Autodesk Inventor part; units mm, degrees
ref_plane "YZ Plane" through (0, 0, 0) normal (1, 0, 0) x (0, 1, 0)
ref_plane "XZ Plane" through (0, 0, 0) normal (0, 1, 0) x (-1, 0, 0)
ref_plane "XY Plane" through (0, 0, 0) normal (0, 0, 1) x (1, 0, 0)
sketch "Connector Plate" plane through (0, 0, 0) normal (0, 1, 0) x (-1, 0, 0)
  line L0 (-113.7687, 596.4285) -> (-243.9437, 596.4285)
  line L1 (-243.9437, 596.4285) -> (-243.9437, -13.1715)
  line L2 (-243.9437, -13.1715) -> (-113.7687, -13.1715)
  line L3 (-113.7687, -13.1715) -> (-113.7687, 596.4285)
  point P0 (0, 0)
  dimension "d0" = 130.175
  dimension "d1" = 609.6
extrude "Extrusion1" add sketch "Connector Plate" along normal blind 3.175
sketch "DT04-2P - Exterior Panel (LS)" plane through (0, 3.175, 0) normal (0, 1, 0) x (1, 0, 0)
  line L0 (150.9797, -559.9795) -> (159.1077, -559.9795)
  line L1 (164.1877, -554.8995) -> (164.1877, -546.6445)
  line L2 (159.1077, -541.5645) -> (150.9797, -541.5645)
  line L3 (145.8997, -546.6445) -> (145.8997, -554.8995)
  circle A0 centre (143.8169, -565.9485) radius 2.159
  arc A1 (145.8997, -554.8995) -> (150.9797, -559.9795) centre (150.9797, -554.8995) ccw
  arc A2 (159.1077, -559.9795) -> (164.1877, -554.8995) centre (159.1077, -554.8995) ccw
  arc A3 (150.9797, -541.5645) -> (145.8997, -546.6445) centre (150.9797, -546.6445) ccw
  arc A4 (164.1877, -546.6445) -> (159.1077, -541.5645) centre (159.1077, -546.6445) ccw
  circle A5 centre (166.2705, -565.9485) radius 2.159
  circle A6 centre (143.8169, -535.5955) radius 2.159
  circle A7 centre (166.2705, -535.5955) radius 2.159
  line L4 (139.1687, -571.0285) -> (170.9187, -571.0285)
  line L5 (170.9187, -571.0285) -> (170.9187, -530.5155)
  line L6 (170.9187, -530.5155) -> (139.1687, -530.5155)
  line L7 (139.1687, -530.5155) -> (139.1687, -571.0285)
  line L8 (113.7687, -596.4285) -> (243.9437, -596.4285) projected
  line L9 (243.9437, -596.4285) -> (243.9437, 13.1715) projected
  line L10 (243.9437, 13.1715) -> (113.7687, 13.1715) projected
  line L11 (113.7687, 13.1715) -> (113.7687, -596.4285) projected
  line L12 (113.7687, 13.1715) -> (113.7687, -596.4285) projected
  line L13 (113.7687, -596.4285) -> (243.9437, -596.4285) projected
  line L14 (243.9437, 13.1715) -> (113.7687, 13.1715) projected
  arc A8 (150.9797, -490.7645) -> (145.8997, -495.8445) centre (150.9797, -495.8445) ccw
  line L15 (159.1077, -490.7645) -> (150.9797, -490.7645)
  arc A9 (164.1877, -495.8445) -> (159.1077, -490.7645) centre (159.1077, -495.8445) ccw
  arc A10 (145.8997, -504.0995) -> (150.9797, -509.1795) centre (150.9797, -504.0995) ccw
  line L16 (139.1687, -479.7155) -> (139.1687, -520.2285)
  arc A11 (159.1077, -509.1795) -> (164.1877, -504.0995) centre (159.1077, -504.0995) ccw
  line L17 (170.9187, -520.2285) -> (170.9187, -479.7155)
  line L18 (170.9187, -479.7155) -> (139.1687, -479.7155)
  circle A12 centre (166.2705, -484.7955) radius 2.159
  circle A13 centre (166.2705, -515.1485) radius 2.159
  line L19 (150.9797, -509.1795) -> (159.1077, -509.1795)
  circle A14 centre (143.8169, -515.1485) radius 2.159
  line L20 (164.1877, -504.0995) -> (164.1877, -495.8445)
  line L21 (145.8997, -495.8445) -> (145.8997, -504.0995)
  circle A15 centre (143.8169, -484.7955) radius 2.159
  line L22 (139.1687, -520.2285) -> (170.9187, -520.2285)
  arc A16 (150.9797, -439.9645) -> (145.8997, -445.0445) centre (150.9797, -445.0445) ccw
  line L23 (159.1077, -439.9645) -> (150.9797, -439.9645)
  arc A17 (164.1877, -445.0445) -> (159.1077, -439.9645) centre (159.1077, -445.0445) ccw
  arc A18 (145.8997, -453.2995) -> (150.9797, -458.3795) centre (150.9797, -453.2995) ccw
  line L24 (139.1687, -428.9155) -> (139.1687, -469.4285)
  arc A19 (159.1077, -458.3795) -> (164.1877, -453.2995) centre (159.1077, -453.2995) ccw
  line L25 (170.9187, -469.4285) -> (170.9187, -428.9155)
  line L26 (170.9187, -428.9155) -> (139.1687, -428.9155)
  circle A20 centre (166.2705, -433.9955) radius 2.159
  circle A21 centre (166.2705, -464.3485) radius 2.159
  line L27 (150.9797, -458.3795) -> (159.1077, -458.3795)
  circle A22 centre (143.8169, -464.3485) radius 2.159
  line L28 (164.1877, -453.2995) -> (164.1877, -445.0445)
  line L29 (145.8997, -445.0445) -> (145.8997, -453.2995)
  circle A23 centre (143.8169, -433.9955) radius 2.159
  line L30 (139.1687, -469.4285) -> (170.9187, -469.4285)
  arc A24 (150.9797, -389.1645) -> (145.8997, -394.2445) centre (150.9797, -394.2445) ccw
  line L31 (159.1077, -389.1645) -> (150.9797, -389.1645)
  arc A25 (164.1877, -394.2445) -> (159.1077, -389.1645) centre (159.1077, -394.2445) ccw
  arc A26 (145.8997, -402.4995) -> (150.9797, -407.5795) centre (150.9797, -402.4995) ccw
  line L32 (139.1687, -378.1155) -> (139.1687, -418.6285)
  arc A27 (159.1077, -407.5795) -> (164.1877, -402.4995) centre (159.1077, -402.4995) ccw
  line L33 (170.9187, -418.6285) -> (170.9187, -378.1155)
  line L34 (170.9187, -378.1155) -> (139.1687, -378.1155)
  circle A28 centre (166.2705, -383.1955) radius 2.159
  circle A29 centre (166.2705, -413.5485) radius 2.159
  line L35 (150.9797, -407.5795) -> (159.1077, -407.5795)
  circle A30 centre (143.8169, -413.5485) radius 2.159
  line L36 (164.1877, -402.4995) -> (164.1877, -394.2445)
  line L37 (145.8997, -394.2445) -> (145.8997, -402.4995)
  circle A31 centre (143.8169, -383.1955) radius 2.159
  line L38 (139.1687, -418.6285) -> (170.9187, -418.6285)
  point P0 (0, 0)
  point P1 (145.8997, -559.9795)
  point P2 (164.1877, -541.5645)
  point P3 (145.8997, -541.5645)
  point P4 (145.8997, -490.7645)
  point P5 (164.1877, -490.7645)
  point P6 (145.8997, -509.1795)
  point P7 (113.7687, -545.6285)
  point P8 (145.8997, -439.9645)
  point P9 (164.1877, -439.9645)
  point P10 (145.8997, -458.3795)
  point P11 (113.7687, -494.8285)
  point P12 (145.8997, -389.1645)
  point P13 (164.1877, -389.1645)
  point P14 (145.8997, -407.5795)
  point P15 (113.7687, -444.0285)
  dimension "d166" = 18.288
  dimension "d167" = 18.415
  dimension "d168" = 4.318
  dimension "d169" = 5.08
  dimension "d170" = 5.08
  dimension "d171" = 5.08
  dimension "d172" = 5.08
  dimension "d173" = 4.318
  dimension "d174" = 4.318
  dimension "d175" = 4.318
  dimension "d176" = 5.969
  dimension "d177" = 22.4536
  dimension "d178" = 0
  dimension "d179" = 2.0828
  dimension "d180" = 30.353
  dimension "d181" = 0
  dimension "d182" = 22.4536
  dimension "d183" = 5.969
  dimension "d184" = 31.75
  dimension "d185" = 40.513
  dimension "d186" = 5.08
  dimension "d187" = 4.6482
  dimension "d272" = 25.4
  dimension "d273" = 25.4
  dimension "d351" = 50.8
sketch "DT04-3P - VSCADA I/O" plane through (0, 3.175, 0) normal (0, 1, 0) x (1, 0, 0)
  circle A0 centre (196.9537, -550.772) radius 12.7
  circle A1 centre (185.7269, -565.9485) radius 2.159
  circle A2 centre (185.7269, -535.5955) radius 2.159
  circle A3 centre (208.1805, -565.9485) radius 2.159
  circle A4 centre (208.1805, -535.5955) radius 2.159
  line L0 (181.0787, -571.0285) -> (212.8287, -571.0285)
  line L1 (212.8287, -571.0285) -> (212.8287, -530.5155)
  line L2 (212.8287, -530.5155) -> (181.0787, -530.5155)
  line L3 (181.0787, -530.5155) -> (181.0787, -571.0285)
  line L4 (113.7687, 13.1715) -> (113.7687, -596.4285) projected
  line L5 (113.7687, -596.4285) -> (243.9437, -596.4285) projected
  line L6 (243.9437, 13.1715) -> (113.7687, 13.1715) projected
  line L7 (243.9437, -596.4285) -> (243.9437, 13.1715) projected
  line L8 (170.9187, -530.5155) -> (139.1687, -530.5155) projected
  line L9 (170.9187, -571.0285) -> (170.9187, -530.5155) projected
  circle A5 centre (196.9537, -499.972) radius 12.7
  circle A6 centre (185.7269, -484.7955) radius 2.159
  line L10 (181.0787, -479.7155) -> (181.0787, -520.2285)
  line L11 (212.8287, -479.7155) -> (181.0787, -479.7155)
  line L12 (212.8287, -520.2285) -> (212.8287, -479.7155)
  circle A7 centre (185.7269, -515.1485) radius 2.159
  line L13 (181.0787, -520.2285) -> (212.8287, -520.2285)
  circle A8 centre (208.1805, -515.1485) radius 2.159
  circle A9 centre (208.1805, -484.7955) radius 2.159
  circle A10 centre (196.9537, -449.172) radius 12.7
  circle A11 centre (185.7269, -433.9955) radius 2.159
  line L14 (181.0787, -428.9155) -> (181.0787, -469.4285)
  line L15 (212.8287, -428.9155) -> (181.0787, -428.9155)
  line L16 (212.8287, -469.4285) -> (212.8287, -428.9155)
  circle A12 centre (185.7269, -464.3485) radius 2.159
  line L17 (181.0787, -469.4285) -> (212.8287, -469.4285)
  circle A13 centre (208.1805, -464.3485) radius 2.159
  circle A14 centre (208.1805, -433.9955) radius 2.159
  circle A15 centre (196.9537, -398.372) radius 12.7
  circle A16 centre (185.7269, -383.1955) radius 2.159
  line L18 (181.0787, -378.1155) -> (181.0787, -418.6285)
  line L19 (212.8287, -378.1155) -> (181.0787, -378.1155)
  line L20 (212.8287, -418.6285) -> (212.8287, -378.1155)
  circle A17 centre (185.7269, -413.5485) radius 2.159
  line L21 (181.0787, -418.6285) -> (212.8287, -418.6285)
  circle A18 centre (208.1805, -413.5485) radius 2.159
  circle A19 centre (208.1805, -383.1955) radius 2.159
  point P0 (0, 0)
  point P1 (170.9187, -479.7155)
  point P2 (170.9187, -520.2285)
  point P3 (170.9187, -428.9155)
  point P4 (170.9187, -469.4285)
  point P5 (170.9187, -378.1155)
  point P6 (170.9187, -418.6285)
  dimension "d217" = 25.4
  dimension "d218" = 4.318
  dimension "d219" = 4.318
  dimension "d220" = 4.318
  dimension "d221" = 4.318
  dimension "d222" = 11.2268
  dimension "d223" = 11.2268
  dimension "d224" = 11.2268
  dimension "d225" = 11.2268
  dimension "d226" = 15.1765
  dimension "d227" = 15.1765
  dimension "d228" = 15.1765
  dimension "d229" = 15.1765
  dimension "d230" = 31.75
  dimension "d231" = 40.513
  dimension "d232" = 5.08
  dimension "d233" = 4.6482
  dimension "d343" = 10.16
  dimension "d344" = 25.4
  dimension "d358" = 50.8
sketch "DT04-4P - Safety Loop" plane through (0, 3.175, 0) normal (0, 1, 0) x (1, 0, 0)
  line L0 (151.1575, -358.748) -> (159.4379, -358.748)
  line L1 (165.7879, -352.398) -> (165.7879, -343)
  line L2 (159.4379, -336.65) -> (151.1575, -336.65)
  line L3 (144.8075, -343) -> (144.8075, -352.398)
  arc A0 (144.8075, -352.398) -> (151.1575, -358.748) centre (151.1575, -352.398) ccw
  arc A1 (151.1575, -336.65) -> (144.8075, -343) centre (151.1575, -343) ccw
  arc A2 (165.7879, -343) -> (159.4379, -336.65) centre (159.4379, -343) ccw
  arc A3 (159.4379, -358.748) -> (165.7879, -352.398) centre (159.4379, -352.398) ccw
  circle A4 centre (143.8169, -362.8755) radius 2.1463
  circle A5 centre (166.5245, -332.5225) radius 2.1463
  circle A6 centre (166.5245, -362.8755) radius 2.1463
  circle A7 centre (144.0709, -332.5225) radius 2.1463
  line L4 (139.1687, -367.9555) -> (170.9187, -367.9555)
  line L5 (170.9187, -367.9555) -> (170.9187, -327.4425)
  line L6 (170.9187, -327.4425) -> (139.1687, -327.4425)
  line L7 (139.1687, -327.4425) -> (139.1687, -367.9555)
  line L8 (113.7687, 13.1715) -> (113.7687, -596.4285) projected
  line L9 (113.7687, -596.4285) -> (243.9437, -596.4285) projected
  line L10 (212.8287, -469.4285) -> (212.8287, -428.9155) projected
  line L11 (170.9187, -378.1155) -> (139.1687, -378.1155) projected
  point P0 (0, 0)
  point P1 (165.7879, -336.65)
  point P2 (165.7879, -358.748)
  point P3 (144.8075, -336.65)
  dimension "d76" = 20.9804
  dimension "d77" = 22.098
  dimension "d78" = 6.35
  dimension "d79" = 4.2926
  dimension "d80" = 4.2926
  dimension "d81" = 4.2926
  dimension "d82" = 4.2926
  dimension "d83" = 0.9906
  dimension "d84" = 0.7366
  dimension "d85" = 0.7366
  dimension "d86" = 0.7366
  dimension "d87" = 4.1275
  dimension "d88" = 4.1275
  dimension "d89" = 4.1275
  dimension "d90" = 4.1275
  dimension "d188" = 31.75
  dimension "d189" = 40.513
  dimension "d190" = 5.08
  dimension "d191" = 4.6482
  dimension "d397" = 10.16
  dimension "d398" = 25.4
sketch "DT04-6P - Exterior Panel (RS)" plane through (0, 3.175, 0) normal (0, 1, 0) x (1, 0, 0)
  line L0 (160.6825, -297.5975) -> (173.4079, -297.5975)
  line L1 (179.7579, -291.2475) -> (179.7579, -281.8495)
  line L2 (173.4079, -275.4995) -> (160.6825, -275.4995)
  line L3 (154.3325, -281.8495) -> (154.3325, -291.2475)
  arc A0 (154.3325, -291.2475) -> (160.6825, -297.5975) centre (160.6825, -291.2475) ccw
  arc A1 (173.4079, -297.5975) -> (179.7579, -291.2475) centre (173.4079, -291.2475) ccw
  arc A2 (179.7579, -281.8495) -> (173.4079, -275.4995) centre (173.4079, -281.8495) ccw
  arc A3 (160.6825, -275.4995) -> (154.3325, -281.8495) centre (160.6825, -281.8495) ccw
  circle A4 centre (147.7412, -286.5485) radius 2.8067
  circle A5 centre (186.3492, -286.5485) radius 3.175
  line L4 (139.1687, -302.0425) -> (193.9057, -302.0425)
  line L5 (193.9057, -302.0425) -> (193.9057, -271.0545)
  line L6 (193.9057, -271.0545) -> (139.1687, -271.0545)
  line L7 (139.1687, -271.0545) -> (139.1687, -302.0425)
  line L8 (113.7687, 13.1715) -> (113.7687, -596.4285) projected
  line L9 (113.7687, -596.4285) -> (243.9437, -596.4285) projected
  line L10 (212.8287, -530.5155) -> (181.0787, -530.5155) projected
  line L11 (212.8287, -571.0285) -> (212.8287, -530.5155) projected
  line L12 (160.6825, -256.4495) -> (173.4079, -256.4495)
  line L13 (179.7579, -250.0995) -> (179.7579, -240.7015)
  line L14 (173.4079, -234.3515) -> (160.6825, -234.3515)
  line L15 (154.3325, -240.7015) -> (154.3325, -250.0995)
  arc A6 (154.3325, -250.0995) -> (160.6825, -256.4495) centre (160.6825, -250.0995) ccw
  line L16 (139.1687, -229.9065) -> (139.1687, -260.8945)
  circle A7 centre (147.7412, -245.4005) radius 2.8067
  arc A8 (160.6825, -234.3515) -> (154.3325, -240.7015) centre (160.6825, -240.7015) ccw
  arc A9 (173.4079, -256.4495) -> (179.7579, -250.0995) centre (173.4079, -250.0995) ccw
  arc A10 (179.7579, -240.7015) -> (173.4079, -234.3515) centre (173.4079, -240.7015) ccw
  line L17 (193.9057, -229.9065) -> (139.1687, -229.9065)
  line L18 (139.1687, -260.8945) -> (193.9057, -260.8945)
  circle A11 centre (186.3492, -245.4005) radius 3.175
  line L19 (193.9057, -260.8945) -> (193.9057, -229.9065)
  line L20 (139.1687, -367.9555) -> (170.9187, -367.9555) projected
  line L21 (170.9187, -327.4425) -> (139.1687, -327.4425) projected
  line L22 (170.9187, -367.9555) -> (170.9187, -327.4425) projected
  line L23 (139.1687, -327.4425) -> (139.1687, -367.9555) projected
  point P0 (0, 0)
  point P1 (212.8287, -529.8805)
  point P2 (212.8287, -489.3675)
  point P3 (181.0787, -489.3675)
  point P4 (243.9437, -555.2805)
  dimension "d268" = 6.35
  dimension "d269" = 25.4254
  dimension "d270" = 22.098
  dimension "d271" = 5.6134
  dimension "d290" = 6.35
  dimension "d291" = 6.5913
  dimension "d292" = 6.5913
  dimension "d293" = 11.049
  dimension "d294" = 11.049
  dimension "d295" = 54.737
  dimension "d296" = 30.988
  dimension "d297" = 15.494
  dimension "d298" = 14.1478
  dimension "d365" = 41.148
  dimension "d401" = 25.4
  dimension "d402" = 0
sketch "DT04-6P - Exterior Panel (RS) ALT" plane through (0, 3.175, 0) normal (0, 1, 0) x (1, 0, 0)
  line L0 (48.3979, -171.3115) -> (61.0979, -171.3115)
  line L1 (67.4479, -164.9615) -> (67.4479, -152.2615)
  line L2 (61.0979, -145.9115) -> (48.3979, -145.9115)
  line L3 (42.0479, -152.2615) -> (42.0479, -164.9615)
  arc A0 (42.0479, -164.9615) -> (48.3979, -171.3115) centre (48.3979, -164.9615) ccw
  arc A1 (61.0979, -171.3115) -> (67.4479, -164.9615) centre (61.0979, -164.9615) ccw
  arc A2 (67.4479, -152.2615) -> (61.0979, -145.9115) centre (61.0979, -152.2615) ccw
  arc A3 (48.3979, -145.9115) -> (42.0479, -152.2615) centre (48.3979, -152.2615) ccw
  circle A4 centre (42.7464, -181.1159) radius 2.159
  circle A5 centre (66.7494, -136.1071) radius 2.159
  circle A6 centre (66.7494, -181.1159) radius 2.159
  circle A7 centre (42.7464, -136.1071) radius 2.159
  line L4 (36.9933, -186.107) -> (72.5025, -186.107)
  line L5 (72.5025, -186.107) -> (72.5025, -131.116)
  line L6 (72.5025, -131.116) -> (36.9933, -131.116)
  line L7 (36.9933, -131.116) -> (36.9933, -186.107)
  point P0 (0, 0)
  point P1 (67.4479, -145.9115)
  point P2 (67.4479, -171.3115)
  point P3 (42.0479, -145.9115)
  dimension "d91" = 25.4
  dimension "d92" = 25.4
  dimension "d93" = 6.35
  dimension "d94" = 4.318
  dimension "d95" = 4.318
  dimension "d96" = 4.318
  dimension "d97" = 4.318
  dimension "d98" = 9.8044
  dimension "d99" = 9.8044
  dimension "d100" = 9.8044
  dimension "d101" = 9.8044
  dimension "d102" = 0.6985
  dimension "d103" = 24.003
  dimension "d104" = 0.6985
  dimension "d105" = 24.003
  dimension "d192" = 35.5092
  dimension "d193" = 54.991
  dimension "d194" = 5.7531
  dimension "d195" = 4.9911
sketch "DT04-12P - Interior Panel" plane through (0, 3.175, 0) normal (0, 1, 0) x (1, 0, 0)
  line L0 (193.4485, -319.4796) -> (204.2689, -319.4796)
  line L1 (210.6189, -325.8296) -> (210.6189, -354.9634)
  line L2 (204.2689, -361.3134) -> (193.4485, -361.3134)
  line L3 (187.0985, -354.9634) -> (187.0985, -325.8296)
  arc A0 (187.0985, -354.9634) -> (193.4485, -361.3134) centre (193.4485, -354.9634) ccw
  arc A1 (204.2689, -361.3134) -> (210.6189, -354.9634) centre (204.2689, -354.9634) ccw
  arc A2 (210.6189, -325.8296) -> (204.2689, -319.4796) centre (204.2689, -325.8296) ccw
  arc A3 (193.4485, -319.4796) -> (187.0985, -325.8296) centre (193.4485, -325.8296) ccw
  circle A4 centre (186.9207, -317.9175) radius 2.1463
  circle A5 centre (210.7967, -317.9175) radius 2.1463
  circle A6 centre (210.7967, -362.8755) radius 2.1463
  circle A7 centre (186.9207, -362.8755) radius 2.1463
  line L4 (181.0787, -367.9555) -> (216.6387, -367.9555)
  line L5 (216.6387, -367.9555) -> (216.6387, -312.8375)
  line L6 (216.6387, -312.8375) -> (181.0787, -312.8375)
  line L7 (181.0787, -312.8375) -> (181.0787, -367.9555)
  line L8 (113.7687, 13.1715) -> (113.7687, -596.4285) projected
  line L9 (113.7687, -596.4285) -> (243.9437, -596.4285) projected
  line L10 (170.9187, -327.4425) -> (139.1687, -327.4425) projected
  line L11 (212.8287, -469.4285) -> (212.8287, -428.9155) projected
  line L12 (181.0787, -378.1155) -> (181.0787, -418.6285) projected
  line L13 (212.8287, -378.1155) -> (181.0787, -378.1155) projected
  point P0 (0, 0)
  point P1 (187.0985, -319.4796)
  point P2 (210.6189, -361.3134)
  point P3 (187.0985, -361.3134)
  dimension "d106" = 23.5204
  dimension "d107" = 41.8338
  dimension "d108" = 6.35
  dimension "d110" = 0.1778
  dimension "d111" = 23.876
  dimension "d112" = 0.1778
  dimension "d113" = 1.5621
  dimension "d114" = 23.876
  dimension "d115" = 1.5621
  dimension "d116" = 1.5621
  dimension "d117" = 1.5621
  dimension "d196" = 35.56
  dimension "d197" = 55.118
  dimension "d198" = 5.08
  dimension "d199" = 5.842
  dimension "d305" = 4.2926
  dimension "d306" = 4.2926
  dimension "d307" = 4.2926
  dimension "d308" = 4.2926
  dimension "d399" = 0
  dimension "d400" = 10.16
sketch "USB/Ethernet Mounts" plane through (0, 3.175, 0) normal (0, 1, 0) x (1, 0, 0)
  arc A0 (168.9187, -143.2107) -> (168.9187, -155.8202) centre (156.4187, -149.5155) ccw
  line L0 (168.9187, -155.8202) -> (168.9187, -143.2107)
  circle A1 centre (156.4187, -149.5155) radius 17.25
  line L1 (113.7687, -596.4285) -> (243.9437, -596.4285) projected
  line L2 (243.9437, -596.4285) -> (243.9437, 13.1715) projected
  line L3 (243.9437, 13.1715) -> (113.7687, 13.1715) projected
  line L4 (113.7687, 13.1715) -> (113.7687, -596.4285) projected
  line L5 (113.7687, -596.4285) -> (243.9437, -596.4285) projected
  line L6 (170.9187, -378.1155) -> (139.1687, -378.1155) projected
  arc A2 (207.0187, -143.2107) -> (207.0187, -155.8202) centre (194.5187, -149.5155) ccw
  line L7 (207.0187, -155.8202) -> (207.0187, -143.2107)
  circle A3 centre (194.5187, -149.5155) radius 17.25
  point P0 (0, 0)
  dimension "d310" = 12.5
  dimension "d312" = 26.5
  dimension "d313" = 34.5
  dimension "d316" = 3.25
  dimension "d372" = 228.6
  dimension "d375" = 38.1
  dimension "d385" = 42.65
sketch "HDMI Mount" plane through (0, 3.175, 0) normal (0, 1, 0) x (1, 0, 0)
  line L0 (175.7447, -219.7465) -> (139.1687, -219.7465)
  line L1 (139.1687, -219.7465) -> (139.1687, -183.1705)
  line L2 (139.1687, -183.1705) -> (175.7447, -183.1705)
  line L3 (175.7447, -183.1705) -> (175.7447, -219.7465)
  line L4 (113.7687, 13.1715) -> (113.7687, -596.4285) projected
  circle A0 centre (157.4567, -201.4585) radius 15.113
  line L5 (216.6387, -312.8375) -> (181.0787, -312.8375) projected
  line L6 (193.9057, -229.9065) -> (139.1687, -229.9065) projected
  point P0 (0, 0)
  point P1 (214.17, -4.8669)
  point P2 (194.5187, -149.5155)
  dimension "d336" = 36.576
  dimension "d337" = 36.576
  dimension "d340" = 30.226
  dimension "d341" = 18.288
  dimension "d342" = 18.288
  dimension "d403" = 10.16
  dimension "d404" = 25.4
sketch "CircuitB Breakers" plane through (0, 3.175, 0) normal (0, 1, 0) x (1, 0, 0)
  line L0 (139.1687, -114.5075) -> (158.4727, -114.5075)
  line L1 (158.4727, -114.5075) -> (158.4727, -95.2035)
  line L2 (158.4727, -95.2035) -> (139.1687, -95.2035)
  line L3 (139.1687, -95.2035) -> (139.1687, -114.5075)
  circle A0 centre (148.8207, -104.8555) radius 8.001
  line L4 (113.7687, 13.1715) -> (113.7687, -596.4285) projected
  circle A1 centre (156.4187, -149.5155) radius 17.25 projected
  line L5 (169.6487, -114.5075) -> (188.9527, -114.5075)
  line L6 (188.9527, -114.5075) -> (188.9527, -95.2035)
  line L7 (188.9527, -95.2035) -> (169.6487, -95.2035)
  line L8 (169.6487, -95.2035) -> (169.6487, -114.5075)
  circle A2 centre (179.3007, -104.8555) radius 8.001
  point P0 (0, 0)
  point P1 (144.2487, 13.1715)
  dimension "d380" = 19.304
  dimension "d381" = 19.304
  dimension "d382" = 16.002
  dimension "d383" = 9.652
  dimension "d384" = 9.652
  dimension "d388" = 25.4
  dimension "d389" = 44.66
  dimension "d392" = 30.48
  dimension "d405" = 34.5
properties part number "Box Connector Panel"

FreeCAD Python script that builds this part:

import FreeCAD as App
import Part
import Sketcher
from FreeCAD import Vector
Q = App.Units.Quantity


def add_polygon(sketch, points):
    """Adds a closed chain of lines whose ends are joined by coincident constraints."""
    first, n = sketch.GeometryCount, len(points)
    for a, b in zip(points, points[1:] + points[:1]):
        sketch.addGeometry(Part.LineSegment(App.Vector(*a, 0), App.Vector(*b, 0)), False)
    for i in range(n):
        sketch.addConstraint(Sketcher.Constraint("Coincident", first + i, 2, first + (i + 1) % n, 1))

doc = App.newDocument("Part")
body = doc.addObject("PartDesign::Body", "Body")

# Sketch on XZ plane
sketch1 = body.newObject("Sketcher::SketchObject", "Sketch")
sketch1.AttachmentSupport = (doc.getObject("XZ_Plane"), [""])
sketch1.MapMode = "FlatFace"
add_polygon(sketch1, [(114, -13), (114, 596), (244, 596), (244, -13)])  # lines 0-3
sketch1.addConstraint(Sketcher.Constraint("Vertical", 0))
sketch1.addConstraint(Sketcher.Constraint("Horizontal", 1))
sketch1.addConstraint(Sketcher.Constraint("Vertical", 2))
sketch1.addConstraint(Sketcher.Constraint("Horizontal", 3))
sketch1.addConstraint(Sketcher.Constraint("DistanceY", 0, 1, 0, 2, Q("24 in")))
sketch1.addConstraint(Sketcher.Constraint("DistanceX", 1, 1, 1, 2, Q("5.125 in")))
sketch1.addConstraint(Sketcher.Constraint("DistanceX", -1, 1, 0, 2, 113.7687))
sketch1.addConstraint(Sketcher.Constraint("DistanceY", -1, 1, 0, 2, 596.4285))
pad1 = body.newObject("PartDesign::Pad", "Pad")
pad1.Profile = sketch1
pad1.Length = Q("0.125 in")
pad1.Reversed = True

doc.recompute()
